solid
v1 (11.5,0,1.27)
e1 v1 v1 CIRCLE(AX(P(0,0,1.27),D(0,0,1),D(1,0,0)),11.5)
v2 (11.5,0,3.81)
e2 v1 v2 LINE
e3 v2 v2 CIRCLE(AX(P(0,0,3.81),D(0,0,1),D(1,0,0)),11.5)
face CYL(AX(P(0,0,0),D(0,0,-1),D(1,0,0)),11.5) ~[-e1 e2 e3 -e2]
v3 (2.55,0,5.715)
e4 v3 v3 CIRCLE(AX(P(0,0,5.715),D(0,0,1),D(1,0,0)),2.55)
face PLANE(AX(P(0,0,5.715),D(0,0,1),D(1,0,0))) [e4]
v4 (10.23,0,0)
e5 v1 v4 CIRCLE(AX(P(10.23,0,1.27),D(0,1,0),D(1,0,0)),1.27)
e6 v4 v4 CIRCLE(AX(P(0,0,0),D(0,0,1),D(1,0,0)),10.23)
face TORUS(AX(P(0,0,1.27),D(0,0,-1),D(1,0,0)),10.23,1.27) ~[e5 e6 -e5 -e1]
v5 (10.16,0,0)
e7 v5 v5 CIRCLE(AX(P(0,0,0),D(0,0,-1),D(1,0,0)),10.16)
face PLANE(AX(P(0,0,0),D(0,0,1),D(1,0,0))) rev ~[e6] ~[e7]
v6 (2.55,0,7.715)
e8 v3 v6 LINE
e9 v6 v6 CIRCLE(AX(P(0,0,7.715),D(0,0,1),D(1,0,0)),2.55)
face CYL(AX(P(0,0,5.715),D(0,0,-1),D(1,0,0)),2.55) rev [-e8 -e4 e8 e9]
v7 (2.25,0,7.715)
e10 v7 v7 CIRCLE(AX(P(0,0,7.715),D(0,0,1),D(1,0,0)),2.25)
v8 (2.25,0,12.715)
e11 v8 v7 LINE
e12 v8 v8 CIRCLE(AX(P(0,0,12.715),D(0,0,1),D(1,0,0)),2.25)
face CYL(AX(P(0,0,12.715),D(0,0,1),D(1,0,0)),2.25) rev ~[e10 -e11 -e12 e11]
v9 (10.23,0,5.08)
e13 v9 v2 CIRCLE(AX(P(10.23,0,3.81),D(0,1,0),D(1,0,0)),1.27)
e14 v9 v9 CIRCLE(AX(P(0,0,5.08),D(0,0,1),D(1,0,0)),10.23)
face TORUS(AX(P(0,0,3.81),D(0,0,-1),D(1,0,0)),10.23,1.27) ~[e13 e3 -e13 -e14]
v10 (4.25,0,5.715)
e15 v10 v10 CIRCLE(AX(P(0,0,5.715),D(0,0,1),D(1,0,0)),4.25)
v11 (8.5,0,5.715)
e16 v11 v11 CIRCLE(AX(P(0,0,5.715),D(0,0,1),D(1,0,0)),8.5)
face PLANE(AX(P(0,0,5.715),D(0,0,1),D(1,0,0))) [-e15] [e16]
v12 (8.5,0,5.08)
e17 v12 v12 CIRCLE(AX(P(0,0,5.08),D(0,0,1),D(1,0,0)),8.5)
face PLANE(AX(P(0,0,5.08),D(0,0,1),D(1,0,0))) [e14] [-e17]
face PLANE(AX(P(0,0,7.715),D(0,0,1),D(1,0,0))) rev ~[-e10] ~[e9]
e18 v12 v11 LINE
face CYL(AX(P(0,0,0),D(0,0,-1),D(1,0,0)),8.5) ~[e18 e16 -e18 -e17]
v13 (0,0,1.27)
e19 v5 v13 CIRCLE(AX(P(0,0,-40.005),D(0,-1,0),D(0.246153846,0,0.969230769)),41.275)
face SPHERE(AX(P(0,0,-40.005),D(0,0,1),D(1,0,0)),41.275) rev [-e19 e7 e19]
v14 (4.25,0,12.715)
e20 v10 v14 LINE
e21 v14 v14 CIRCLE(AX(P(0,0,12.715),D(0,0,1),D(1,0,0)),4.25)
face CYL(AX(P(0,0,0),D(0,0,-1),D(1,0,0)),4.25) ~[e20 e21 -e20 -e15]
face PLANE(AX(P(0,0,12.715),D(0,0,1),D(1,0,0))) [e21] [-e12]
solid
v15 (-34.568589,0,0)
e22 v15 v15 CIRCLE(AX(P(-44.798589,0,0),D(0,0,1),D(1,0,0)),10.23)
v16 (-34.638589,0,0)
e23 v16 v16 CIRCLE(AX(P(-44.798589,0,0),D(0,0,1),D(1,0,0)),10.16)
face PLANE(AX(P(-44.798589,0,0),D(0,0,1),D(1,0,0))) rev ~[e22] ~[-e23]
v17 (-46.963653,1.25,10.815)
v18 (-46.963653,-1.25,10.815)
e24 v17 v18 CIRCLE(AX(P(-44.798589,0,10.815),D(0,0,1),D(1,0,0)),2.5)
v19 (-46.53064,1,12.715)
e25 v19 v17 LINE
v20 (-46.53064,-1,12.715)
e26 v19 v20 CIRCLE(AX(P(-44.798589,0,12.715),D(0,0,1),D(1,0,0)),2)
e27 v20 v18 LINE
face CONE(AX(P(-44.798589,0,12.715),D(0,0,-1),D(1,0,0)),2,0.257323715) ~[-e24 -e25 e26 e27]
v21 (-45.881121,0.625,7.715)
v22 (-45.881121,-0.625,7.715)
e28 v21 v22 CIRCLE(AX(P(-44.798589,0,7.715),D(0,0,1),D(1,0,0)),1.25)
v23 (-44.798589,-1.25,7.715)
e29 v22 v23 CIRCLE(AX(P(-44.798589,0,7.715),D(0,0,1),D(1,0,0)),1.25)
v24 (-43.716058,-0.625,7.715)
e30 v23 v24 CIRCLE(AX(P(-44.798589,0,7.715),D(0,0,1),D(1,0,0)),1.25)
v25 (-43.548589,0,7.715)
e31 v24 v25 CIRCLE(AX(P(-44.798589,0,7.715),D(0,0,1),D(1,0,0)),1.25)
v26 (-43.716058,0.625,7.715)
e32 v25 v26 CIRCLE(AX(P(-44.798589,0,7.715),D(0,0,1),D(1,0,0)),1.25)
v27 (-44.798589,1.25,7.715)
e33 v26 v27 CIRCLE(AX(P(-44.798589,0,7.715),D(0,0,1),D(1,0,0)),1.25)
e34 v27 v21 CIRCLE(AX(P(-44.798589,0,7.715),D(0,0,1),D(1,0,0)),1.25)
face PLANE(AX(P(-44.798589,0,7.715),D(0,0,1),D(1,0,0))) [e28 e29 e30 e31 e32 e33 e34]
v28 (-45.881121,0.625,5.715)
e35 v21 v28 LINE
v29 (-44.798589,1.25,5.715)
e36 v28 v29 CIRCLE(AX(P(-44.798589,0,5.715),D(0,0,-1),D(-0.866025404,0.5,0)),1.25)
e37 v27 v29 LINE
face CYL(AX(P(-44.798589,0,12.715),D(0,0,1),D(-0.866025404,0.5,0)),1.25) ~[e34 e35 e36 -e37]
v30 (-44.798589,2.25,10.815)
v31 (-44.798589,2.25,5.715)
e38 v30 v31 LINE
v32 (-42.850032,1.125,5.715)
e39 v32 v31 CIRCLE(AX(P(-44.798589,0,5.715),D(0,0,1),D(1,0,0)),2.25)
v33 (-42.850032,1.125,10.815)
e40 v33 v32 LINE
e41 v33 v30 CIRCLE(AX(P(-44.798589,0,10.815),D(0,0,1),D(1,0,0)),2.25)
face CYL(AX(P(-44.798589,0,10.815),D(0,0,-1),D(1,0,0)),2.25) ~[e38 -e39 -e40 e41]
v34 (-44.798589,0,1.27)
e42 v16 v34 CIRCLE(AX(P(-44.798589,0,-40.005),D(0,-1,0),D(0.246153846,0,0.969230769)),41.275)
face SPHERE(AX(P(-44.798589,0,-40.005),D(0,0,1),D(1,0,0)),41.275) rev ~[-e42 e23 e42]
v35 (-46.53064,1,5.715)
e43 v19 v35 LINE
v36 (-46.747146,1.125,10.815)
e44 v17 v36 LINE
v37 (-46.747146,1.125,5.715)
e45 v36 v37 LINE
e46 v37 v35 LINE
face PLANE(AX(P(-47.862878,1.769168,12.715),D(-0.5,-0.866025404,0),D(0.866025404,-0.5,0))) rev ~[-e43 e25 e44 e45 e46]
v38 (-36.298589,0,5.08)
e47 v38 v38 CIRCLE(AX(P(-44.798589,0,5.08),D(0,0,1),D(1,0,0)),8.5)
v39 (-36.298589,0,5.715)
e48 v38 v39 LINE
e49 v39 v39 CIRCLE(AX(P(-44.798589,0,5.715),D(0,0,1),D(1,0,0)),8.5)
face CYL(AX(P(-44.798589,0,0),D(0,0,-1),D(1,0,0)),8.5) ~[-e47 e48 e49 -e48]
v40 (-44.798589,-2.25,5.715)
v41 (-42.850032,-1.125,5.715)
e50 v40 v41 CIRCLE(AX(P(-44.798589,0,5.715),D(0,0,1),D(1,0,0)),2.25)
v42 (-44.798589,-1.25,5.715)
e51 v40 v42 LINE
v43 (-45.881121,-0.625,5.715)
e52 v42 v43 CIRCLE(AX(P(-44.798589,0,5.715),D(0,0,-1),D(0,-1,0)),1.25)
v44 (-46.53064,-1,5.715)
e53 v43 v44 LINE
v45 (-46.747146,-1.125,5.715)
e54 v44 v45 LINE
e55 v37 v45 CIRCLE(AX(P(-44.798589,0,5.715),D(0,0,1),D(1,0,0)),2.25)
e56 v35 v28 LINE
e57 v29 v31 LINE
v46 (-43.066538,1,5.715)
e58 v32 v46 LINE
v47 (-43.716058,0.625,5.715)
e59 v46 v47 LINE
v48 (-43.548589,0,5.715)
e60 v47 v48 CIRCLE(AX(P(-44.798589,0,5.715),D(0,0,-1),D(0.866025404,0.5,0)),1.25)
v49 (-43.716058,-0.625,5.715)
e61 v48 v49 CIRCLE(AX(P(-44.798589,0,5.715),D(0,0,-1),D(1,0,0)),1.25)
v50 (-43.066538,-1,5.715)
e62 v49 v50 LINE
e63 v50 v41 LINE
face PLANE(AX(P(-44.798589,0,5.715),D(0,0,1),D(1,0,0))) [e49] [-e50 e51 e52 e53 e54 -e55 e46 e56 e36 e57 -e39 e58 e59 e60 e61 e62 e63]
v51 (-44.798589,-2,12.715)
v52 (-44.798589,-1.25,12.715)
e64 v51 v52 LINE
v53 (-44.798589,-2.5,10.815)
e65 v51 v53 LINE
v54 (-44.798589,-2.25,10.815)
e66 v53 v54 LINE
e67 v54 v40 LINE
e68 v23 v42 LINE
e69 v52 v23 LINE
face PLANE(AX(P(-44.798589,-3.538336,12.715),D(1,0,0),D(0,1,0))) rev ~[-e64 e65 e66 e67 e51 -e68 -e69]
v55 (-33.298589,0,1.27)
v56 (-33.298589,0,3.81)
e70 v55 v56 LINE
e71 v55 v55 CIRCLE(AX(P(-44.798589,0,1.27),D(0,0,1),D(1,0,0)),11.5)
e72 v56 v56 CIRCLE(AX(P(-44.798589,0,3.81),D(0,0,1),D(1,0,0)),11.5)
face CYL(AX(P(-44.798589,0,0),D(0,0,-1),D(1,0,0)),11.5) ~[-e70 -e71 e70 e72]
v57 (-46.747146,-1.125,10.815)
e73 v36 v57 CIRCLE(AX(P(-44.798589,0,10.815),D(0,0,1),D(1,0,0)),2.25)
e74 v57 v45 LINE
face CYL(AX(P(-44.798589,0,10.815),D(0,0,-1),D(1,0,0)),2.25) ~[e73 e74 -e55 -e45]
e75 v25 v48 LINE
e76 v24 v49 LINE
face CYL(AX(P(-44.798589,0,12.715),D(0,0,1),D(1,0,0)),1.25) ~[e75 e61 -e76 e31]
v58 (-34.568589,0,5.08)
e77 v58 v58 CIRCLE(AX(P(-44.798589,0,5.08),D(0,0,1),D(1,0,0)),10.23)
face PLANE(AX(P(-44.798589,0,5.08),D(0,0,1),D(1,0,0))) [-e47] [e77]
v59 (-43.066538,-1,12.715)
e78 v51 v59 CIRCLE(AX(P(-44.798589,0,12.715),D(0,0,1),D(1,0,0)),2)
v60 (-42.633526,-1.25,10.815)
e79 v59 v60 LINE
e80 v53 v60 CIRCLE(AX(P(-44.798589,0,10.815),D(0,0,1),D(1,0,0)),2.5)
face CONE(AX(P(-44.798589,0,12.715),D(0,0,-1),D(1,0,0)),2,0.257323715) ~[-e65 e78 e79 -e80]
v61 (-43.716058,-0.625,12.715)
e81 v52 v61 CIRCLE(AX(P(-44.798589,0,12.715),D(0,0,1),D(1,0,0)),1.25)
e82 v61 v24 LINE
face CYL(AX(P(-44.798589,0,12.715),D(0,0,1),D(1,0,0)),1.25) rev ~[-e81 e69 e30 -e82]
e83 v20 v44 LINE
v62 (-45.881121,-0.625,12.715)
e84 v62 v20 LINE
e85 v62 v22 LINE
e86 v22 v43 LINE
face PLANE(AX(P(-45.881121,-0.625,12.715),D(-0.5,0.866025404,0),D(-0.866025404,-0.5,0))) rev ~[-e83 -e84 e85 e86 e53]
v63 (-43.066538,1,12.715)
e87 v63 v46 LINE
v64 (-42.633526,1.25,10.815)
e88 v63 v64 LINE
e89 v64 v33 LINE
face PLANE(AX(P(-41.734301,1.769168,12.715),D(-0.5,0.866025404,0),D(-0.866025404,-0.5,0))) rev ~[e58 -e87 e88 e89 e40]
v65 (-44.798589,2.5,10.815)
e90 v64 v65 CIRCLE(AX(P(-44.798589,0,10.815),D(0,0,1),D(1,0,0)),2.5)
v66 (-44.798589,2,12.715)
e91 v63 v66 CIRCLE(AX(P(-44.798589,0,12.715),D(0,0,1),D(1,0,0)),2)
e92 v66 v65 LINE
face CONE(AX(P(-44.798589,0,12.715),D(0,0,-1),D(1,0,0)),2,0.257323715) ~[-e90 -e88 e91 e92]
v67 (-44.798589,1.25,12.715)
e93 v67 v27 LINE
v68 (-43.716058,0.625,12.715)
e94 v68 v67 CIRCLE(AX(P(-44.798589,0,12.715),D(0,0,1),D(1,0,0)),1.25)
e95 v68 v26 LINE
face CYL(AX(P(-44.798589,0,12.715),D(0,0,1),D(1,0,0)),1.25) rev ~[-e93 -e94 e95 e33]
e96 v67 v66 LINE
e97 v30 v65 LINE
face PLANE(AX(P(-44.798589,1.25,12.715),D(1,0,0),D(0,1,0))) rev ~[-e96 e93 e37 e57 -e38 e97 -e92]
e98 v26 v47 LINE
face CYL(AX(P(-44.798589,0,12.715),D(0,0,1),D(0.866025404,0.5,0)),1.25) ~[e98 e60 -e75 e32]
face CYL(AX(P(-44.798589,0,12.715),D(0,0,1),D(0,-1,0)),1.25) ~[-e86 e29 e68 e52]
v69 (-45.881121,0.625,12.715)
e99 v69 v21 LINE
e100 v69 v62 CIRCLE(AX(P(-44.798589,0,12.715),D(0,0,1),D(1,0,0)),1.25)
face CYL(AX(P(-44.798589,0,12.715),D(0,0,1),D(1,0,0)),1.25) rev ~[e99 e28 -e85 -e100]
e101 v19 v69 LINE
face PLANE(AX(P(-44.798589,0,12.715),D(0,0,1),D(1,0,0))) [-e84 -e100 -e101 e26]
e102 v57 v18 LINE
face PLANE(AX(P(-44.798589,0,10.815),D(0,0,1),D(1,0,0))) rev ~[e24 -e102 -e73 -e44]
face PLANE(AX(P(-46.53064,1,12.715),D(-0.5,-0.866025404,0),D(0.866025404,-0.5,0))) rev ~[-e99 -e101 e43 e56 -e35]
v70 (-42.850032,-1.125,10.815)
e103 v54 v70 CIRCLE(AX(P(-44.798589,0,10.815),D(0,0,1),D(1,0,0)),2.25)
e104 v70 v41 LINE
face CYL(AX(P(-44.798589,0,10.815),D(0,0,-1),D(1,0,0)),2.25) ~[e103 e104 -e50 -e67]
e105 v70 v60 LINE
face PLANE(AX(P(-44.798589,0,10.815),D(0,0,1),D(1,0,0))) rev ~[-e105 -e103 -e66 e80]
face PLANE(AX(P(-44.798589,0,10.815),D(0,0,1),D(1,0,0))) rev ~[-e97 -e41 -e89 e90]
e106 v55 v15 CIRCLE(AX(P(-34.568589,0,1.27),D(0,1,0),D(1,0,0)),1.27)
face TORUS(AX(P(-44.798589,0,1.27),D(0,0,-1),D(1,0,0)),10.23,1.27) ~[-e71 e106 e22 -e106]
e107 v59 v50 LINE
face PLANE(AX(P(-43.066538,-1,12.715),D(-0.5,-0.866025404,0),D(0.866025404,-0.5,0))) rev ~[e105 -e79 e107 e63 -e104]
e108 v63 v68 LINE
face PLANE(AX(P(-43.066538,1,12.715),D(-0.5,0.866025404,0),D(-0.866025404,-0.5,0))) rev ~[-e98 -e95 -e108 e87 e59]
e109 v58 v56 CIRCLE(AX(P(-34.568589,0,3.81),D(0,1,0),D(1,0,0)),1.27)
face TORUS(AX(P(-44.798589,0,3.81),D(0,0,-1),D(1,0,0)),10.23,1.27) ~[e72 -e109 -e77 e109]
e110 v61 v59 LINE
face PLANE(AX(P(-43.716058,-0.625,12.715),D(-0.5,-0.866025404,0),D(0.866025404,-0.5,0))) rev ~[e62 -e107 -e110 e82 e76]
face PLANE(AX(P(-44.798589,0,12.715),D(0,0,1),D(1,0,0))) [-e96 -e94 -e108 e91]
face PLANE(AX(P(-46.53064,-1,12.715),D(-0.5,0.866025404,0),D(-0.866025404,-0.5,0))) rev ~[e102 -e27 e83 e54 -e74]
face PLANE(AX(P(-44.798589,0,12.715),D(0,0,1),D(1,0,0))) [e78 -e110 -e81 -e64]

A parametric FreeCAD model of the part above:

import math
import FreeCAD as App
import Part
import Sketcher

V = App.Vector
Q = App.Units.Quantity


def edges_at(feature, points):
    """Names of the edges that pass closest to the given points."""
    edges = feature.Shape.Edges
    near = lambda p: min(range(len(edges)), key=lambda i: edges[i].distToShape(Part.Vertex(*p))[0])
    return sorted({f"Edge{near(p) + 1}" for p in points})

doc = App.newDocument("Part")
params = doc.addObject("Spreadsheet::Sheet", "Params")
for row, (alias, value) in enumerate([
    ("sketch1_diameter", "23 mm"),
    ("sketch1_diameter2", "17 mm"),
    ("pad1_length", "5.08 mm"),
    ("sketch2_diameter", "17 mm"),
    ("sketch2_diameter2", "8.5 mm"),
    ("pad2_length", "5.715 mm"),
    ("sketch3_diameter", "8.5 mm"),
    ("pad3_length", "12.715 mm"),
    ("fillet_radius", "1.27 mm"),
    ("sketch4_diameter", "4.5 mm"),
    ("pocket1_length", "7 mm"),
    ("sketch5_diameter", "5.1 mm"),
    ("pocket2_length", "2 mm"),
    ("sketch6_width", "10.16 mm"),
    ("groove_angle", "360 deg"),
    ("sketch7_diameter", "23 mm"),
    ("sketch7_diameter2", "17 mm"),
    ("pad4_length", "5.08 mm"),
    ("sketch8_diameter", "17 mm"),
    ("sketch8_diameter2", "5 mm"),
    ("pad5_length", "5.715 mm"),
    ("sketch9_diameter", "5 mm"),
    ("pad6_length", "12.715 mm"),
    ("fillet2_radius", "1.27 mm"),
    ("sketch10_height", "5.1 mm"),
    ("sketch10_width", "0.25 mm"),
    ("groove2_angle", "360 deg"),
    ("sketch11_diameter", "2.5 mm"),
    ("pocket3_length", "5 mm"),
    ("sketch12_radius", "1.25 mm"),
    ("sketch12_length", "0.75 mm"),
    ("pocket4_length", "7 mm"),
    ("sketch13_width", "10.16 mm"),
    ("groove3_angle", "360 deg"),
], start=1):
    params.set(f"A{row}", alias)
    params.set(f"B{row}", "=" + value)
    params.setAlias(f"B{row}", alias)

body = doc.addObject("PartDesign::Body", "Body")

# Sketch on XY plane
sketch1 = doc.addObject("Sketcher::SketchObject", "Sketch")
body.addObject(sketch1)
sketch1.AttachmentSupport = (doc.XY_Plane, [""])
sketch1.MapMode = "FlatFace"
sketch1.addGeometry(Part.Circle(V(0, 0, 0), V(0, 0, 1), 11.5), False)
sketch1.addGeometry(Part.Circle(V(0, 0, 0), V(0, 0, 1), 8.5), False)
sketch1.addConstraint(Sketcher.Constraint("Coincident", 0, 3, -1, 1))
sketch1.addConstraint(Sketcher.Constraint("Coincident", 1, 3, -1, 1))
sketch1.addConstraint(Sketcher.Constraint("Diameter", 0, Q("23 mm")))
sketch1.addConstraint(Sketcher.Constraint("Diameter", 1, Q("17 mm")))
sketch1.setExpression("Constraints[2]", "Params.sketch1_diameter")
sketch1.setExpression("Constraints[3]", "Params.sketch1_diameter2")
pad1 = doc.addObject("PartDesign::Pad", "Pad")
body.addObject(pad1)
pad1.Profile = sketch1
pad1.setExpression("Length", "Params.pad1_length")

# Sketch on XY plane
sketch2 = doc.addObject("Sketcher::SketchObject", "Sketch001")
body.addObject(sketch2)
sketch2.AttachmentSupport = (doc.XY_Plane, [""])
sketch2.MapMode = "FlatFace"
sketch2.addGeometry(Part.Circle(V(0, 0, 0), V(0, 0, 1), 8.5), False)
sketch2.addGeometry(Part.Circle(V(0, 0, 0), V(0, 0, 1), 4.25), False)
sketch2.addConstraint(Sketcher.Constraint("Coincident", 0, 3, -1, 1))
sketch2.addConstraint(Sketcher.Constraint("Coincident", 1, 3, -1, 1))
sketch2.addConstraint(Sketcher.Constraint("Diameter", 0, Q("17 mm")))
sketch2.addConstraint(Sketcher.Constraint("Diameter", 1, Q("8.5 mm")))
sketch2.setExpression("Constraints[2]", "Params.sketch2_diameter")
sketch2.setExpression("Constraints[3]", "Params.sketch2_diameter2")
pad2 = doc.addObject("PartDesign::Pad", "Pad001")
body.addObject(pad2)
pad2.Profile = sketch2
pad2.setExpression("Length", "Params.pad2_length")

# Sketch on XY plane
sketch3 = doc.addObject("Sketcher::SketchObject", "Sketch002")
body.addObject(sketch3)
sketch3.AttachmentSupport = (doc.XY_Plane, [""])
sketch3.MapMode = "FlatFace"
sketch3.addGeometry(Part.Circle(V(0, 0, 0), V(0, 0, 1), 4.25), False)
sketch3.addConstraint(Sketcher.Constraint("Coincident", 0, 3, -1, 1))
sketch3.addConstraint(Sketcher.Constraint("Diameter", 0, Q("8.5 mm")))
sketch3.setExpression("Constraints[1]", "Params.sketch3_diameter")
pad3 = doc.addObject("PartDesign::Pad", "Pad002")
body.addObject(pad3)
pad3.Profile = sketch3
pad3.setExpression("Length", "Params.pad3_length")
doc.recompute()

fillet = doc.addObject("PartDesign::Fillet", "Fillet")
body.addObject(fillet)
fillet.Base = (pad3, edges_at(pad3, [(-11.5, 0, 5.08), (-11.5, 0, 0)]))
fillet.setExpression("Radius", "Params.fillet_radius")

# Sketch on XY plane
sketch4 = doc.addObject("Sketcher::SketchObject", "Sketch003")
body.addObject(sketch4)
sketch4.AttachmentSupport = (doc.XY_Plane, [""])
sketch4.MapMode = "FlatFace"
sketch4.AttachmentOffset = App.Placement(V(0, 0, 12.715), App.Rotation())
sketch4.addGeometry(Part.Circle(V(0, 0, 0), V(0, 0, 1), 2.25), False)
sketch4.addConstraint(Sketcher.Constraint("Coincident", 0, 3, -1, 1))
sketch4.addConstraint(Sketcher.Constraint("Diameter", 0, Q("4.5 mm")))
sketch4.setExpression("Constraints[1]", "Params.sketch4_diameter")
pocket1 = doc.addObject("PartDesign::Pocket", "Pocket")
body.addObject(pocket1)
pocket1.Profile = sketch4
pocket1.setExpression("Length", "Params.pocket1_length")

# Sketch on XY plane
sketch5 = doc.addObject("Sketcher::SketchObject", "Sketch004")
body.addObject(sketch5)
sketch5.AttachmentSupport = (doc.XY_Plane, [""])
sketch5.MapMode = "FlatFace"
sketch5.AttachmentOffset = App.Placement(V(0, 0, 5.715), App.Rotation())
sketch5.addGeometry(Part.Circle(V(0, 0, 0), V(0, 0, 1), 2.55), False)
sketch5.addConstraint(Sketcher.Constraint("Coincident", 0, 3, -1, 1))
sketch5.addConstraint(Sketcher.Constraint("Diameter", 0, Q("5.1 mm")))
sketch5.setExpression("Constraints[1]", "Params.sketch5_diameter")
pocket2 = doc.addObject("PartDesign::Pocket", "Pocket001")
body.addObject(pocket2)
pocket2.Profile = sketch5
pocket2.setExpression("Length", "Params.pocket2_length")
pocket2.Reversed = True

# Sketch on XZ plane
sketch6 = doc.addObject("Sketcher::SketchObject", "Sketch005")
body.addObject(sketch6)
sketch6.AttachmentSupport = (doc.XZ_Plane, [""])
sketch6.MapMode = "FlatFace"
sketch6.addGeometry(Part.LineSegment(V(0, 1.27, 0), V(0, 0, 0)), False)
sketch6.addGeometry(Part.LineSegment(V(0, 0, 0), V(10.16, 0, 0)), False)
sketch6.addGeometry(Part.ArcOfCircle(Part.Circle(V(0, -40.005, 0), V(0, 0, 1), 41.275), math.radians(75.749967), math.radians(90)), False)
sketch6.addConstraint(Sketcher.Constraint("Coincident", 0, 2, 1, 1))
sketch6.addConstraint(Sketcher.Constraint("Coincident", 1, 2, 2, 1))
sketch6.addConstraint(Sketcher.Constraint("Coincident", 2, 2, 0, 1))
sketch6.addConstraint(Sketcher.Constraint("Vertical", 0))
sketch6.addConstraint(Sketcher.Constraint("Horizontal", 1))
sketch6.addConstraint(Sketcher.Constraint("Coincident", 0, 2, -1, 1))
sketch6.addConstraint(Sketcher.Constraint("PointOnObject", 2, 3, -2))
sketch6.addConstraint(Sketcher.Constraint("Radius", 2, Q("41.275 mm")))
sketch6.addConstraint(Sketcher.Constraint("DistanceX", 1, 1, 1, 2, Q("10.16 mm")))
sketch6.setExpression("Constraints[8]", "Params.sketch6_width")
groove = doc.addObject("PartDesign::Groove", "Groove")
body.addObject(groove)
groove.Profile = sketch6
groove.ReferenceAxis = (sketch6, ["V_Axis"])
groove.setExpression("Angle", "Params.groove_angle")
body2 = doc.addObject("PartDesign::Body", "Body001")

# Sketch on XY plane
sketch7 = doc.addObject("Sketcher::SketchObject", "Sketch006")
body2.addObject(sketch7)
sketch7.AttachmentSupport = (doc.getObject("XY_Plane001"), [""])
sketch7.MapMode = "FlatFace"
sketch7.addGeometry(Part.Circle(V(-44.798589, 0, 0), V(0, 0, 1), 11.5), False)
sketch7.addGeometry(Part.Circle(V(-44.798589, 0, 0), V(0, 0, 1), 8.5), False)
sketch7.addConstraint(Sketcher.Constraint("Coincident", 1, 3, 0, 3))
sketch7.addConstraint(Sketcher.Constraint("PointOnObject", 0, 3, -1))
sketch7.addConstraint(Sketcher.Constraint("Diameter", 0, Q("23 mm")))
sketch7.addConstraint(Sketcher.Constraint("Diameter", 1, Q("17 mm")))
sketch7.addConstraint(Sketcher.Constraint("DistanceX", 0, 3, -1, 1, Q("44.798589 mm")))
sketch7.setExpression("Constraints[2]", "Params.sketch7_diameter")
sketch7.setExpression("Constraints[3]", "Params.sketch7_diameter2")
pad4 = doc.addObject("PartDesign::Pad", "Pad003")
body2.addObject(pad4)
pad4.Profile = sketch7
pad4.setExpression("Length", "Params.pad4_length")

# Sketch on XY plane
sketch8 = doc.addObject("Sketcher::SketchObject", "Sketch007")
body2.addObject(sketch8)
sketch8.AttachmentSupport = (doc.getObject("XY_Plane001"), [""])
sketch8.MapMode = "FlatFace"
sketch8.addGeometry(Part.Circle(V(-44.798589, 0, 0), V(0, 0, 1), 8.5), False)
sketch8.addGeometry(Part.Circle(V(-44.798589, 0, 0), V(0, 0, 1), 2.5), False)
sketch8.addConstraint(Sketcher.Constraint("Coincident", 1, 3, 0, 3))
sketch8.addConstraint(Sketcher.Constraint("PointOnObject", 0, 3, -1))
sketch8.addConstraint(Sketcher.Constraint("Diameter", 0, Q("17 mm")))
sketch8.addConstraint(Sketcher.Constraint("Diameter", 1, Q("5 mm")))
sketch8.addConstraint(Sketcher.Constraint("DistanceX", 0, 3, -1, 1, Q("44.798589 mm")))
sketch8.setExpression("Constraints[2]", "Params.sketch8_diameter")
sketch8.setExpression("Constraints[3]", "Params.sketch8_diameter2")
pad5 = doc.addObject("PartDesign::Pad", "Pad004")
body2.addObject(pad5)
pad5.Profile = sketch8
pad5.setExpression("Length", "Params.pad5_length")

# Sketch on XY plane
sketch9 = doc.addObject("Sketcher::SketchObject", "Sketch008")
body2.addObject(sketch9)
sketch9.AttachmentSupport = (doc.getObject("XY_Plane001"), [""])
sketch9.MapMode = "FlatFace"
sketch9.addGeometry(Part.Circle(V(-44.798589, 0, 0), V(0, 0, 1), 2.5), False)
sketch9.addConstraint(Sketcher.Constraint("PointOnObject", 0, 3, -1))
sketch9.addConstraint(Sketcher.Constraint("Diameter", 0, Q("5 mm")))
sketch9.addConstraint(Sketcher.Constraint("DistanceX", 0, 3, -1, 1, Q("44.798589 mm")))
sketch9.setExpression("Constraints[1]", "Params.sketch9_diameter")
pad6 = doc.addObject("PartDesign::Pad", "Pad005")
body2.addObject(pad6)
pad6.Profile = sketch9
pad6.setExpression("Length", "Params.pad6_length")
doc.recompute()

fillet2 = doc.addObject("PartDesign::Fillet", "Fillet001")
body2.addObject(fillet2)
fillet2.Base = (pad6, edges_at(pad6, [(-56.299, 0, 5.08), (-56.299, 0, 0)]))
fillet2.setExpression("Radius", "Params.fillet2_radius")

# Sketch on XZ plane
sketch10 = doc.addObject("Sketcher::SketchObject", "Sketch009")
body2.addObject(sketch10)
sketch10.AttachmentSupport = (doc.getObject("XZ_Plane001"), [""])
sketch10.MapMode = "FlatFace"
sketch10.addGeometry(Part.LineSegment(V(-42.548589, 10.815, 0), V(-42.548589, 5.715, 0)), False)
sketch10.addGeometry(Part.LineSegment(V(-42.548589, 5.715, 0), V(-41.899718, 5.715, 0)), False)
sketch10.addGeometry(Part.LineSegment(V(-41.899718, 5.715, 0), V(-41.636892, 10.815, 0)), False)
sketch10.addGeometry(Part.LineSegment(V(-41.636892, 10.815, 0), V(-41.877424, 12.803311, 0)), False)
sketch10.addGeometry(Part.LineSegment(V(-41.877424, 12.803311, 0), V(-42.548589, 12.715, 0)), False)
sketch10.addGeometry(Part.LineSegment(V(-42.548589, 12.715, 0), V(-42.798589, 12.715, 0)), False)
sketch10.addGeometry(Part.LineSegment(V(-42.798589, 12.715, 0), V(-42.298589, 10.815, 0)), False)
sketch10.addGeometry(Part.LineSegment(V(-42.298589, 10.815, 0), V(-42.548589, 10.815, 0)), False)
sketch10.addGeometry(Part.LineSegment(V(-44.798589, 5.715, 0), V(-44.798589, 12.803311, 0)), True)  # axis
sketch10.addConstraint(Sketcher.Constraint("Coincident", 0, 2, 1, 1))
sketch10.addConstraint(Sketcher.Constraint("Coincident", 1, 2, 2, 1))
sketch10.addConstraint(Sketcher.Constraint("Coincident", 2, 2, 3, 1))
sketch10.addConstraint(Sketcher.Constraint("Coincident", 3, 2, 4, 1))
sketch10.addConstraint(Sketcher.Constraint("Coincident", 4, 2, 5, 1))
sketch10.addConstraint(Sketcher.Constraint("Coincident", 5, 2, 6, 1))
sketch10.addConstraint(Sketcher.Constraint("Coincident", 6, 2, 7, 1))
sketch10.addConstraint(Sketcher.Constraint("Coincident", 7, 2, 0, 1))
sketch10.addConstraint(Sketcher.Constraint("Vertical", 0))
sketch10.addConstraint(Sketcher.Constraint("Horizontal", 1))
sketch10.addConstraint(Sketcher.Constraint("Horizontal", 5))
sketch10.addConstraint(Sketcher.Constraint("Horizontal", 7))
sketch10.addConstraint(Sketcher.Constraint("Vertical", 8))
sketch10.addConstraint(Sketcher.Constraint("Horizontal", 2, 2, 6, 2))
sketch10.addConstraint(Sketcher.Constraint("Horizontal", 1, 2, 8, 1))
sketch10.addConstraint(Sketcher.Constraint("Horizontal", 3, 2, 8, 2))
sketch10.addConstraint(Sketcher.Constraint("Vertical", 0, 2, 4, 2))
sketch10.addConstraint(Sketcher.Constraint("Equal", 5, 7))
sketch10.addConstraint(Sketcher.Constraint("DistanceY", 0, 2, 0, 1, Q("5.1 mm")))
sketch10.addConstraint(Sketcher.Constraint("DistanceY", 0, 2, 4, 2, Q("7 mm")))
sketch10.addConstraint(Sketcher.Constraint("DistanceX", 8, 2, 5, 2, Q("2 mm")))
sketch10.addConstraint(Sketcher.Constraint("DistanceX", 5, 2, 5, 1, Q("0.25 mm")))
sketch10.addConstraint(Sketcher.Constraint("DistanceY", -1, 1, 0, 2, Q("5.715 mm")))
sketch10.addConstraint(Sketcher.Constraint("DistanceX", 1, 1, 1, 2, Q("0.648871 mm")))
sketch10.addConstraint(Sketcher.Constraint("DistanceY", 8, 1, 8, 2, Q("7.088311 mm")))
sketch10.addConstraint(Sketcher.Constraint("Distance", 4, Q("0.67695 mm")))
sketch10.addConstraint(Sketcher.Constraint("DistanceX", 0, 2, -1, 1, Q("42.548589 mm")))
sketch10.addConstraint(Sketcher.Constraint("DistanceX", 2, 2, -1, 1, Q("41.636892 mm")))
sketch10.setExpression("Constraints[18]", "Params.sketch10_height")
sketch10.setExpression("Constraints[21]", "Params.sketch10_width")
groove2 = doc.addObject("PartDesign::Groove", "Groove001")
body2.addObject(groove2)
groove2.Profile = sketch10
groove2.ReferenceAxis = (sketch10, ["Axis0"])
groove2.setExpression("Angle", "Params.groove2_angle")

# Sketch on XY plane
sketch11 = doc.addObject("Sketcher::SketchObject", "Sketch010")
body2.addObject(sketch11)
sketch11.AttachmentSupport = (doc.getObject("XY_Plane001"), [""])
sketch11.MapMode = "FlatFace"
sketch11.AttachmentOffset = App.Placement(V(0, 0, 12.715), App.Rotation())
sketch11.addGeometry(Part.Circle(V(-44.798589, 0, 0), V(0, 0, 1), 1.25), False)
sketch11.addConstraint(Sketcher.Constraint("PointOnObject", 0, 3, -1))
sketch11.addConstraint(Sketcher.Constraint("Diameter", 0, Q("2.5 mm")))
sketch11.addConstraint(Sketcher.Constraint("DistanceX", 0, 3, -1, 1, Q("44.798589 mm")))
sketch11.setExpression("Constraints[1]", "Params.sketch11_diameter")
pocket3 = doc.addObject("PartDesign::Pocket", "Pocket002")
body2.addObject(pocket3)
pocket3.Profile = sketch11
pocket3.setExpression("Length", "Params.pocket3_length")

# Sketch on XY plane
sketch12 = doc.addObject("Sketcher::SketchObject", "Sketch011")
body2.addObject(sketch12)
sketch12.AttachmentSupport = (doc.getObject("XY_Plane001"), [""])
sketch12.MapMode = "FlatFace"
sketch12.AttachmentOffset = App.Placement(V(0, 0, 12.715), App.Rotation())
sketch12.addGeometry(Part.ArcOfCircle(Part.Circle(V(-44.798589, 0, 0), V(0, 0, 1), 3.538336), math.radians(90), math.radians(150)), False)
sketch12.addGeometry(Part.LineSegment(V(-47.862878, 1.769168, 0), V(-46.53064, 1, 0)), False)
sketch12.addGeometry(Part.LineSegment(V(-46.53064, 1, 0), V(-45.881121, 0.625, 0)), False)
sketch12.addGeometry(Part.ArcOfCircle(Part.Circle(V(-44.798589, 0, 0), V(0, 0, 1), 1.25), math.radians(90), math.radians(150)), False)
sketch12.addGeometry(Part.LineSegment(V(-44.798589, 1.25, 0), V(-44.798589, 3.538336, 0)), False)
sketch12.addGeometry(Part.ArcOfCircle(Part.Circle(V(-44.798589, 0, 0), V(0, 0, 1), 3.538336), math.radians(-30), math.radians(0)), False)
sketch12.addGeometry(Part.ArcOfCircle(Part.Circle(V(-44.798589, 0, 0), V(0, 0, 1), 3.538336), math.radians(0), math.radians(30)), False)
sketch12.addGeometry(Part.LineSegment(V(-41.734301, 1.769168, 0), V(-43.066538, 1, 0)), False)
sketch12.addGeometry(Part.LineSegment(V(-43.066538, 1, 0), V(-43.716058, 0.625, 0)), False)
sketch12.addGeometry(Part.ArcOfCircle(Part.Circle(V(-44.798589, 0, 0), V(0, 0, 1), 1.25), math.radians(0), math.radians(30)), False)
sketch12.addGeometry(Part.ArcOfCircle(Part.Circle(V(-44.798589, 0, 0), V(0, 0, 1), 1.25), math.radians(-30), math.radians(0)), False)
sketch12.addGeometry(Part.LineSegment(V(-43.716058, -0.625, 0), V(-43.066538, -1, 0)), False)
sketch12.addGeometry(Part.LineSegment(V(-43.066538, -1, 0), V(-41.734301, -1.769168, 0)), False)
sketch12.addGeometry(Part.ArcOfCircle(Part.Circle(V(-44.798589, 0, 0), V(0, 0, 1), 3.538336), math.radians(-150), math.radians(-90)), False)
sketch12.addGeometry(Part.LineSegment(V(-44.798589, -3.538336, 0), V(-44.798589, -1.25, 0)), False)
sketch12.addGeometry(Part.ArcOfCircle(Part.Circle(V(-44.798589, 0, 0), V(0, 0, 1), 1.25), math.radians(-150), math.radians(-90)), False)
sketch12.addGeometry(Part.LineSegment(V(-45.881121, -0.625, 0), V(-46.53064, -1, 0)), False)
sketch12.addGeometry(Part.LineSegment(V(-46.53064, -1, 0), V(-47.862878, -1.769168, 0)), False)
sketch12.addConstraint(Sketcher.Constraint("Coincident", 0, 2, 1, 1))
sketch12.addConstraint(Sketcher.Constraint("Coincident", 1, 2, 2, 1))
sketch12.addConstraint(Sketcher.Constraint("Coincident", 2, 2, 3, 2))
sketch12.addConstraint(Sketcher.Constraint("Coincident", 3, 1, 4, 1))
sketch12.addConstraint(Sketcher.Constraint("Coincident", 4, 2, 0, 1))
sketch12.addConstraint(Sketcher.Constraint("Tangent", 5, 2, 6, 1))
sketch12.addConstraint(Sketcher.Constraint("Coincident", 6, 2, 7, 1))
sketch12.addConstraint(Sketcher.Constraint("Coincident", 7, 2, 8, 1))
sketch12.addConstraint(Sketcher.Constraint("Coincident", 8, 2, 9, 2))
sketch12.addConstraint(Sketcher.Constraint("Tangent", 9, 1, 10, 2))
sketch12.addConstraint(Sketcher.Constraint("Coincident", 10, 1, 11, 1))
sketch12.addConstraint(Sketcher.Constraint("Coincident", 11, 2, 12, 1))
sketch12.addConstraint(Sketcher.Constraint("Coincident", 12, 2, 5, 1))
sketch12.addConstraint(Sketcher.Constraint("Coincident", 13, 2, 14, 1))
sketch12.addConstraint(Sketcher.Constraint("Coincident", 14, 2, 15, 2))
sketch12.addConstraint(Sketcher.Constraint("Coincident", 15, 1, 16, 1))
sketch12.addConstraint(Sketcher.Constraint("Coincident", 16, 2, 17, 1))
sketch12.addConstraint(Sketcher.Constraint("Coincident", 17, 2, 13, 1))
sketch12.addConstraint(Sketcher.Constraint("Vertical", 4))
sketch12.addConstraint(Sketcher.Constraint("Vertical", 14))
sketch12.addConstraint(Sketcher.Constraint("Coincident", 3, 3, 0, 3))
sketch12.addConstraint(Sketcher.Constraint("Coincident", 5, 3, 0, 3))
sketch12.addConstraint(Sketcher.Constraint("Coincident", 9, 3, 0, 3))
sketch12.addConstraint(Sketcher.Constraint("Coincident", 13, 3, 0, 3))
sketch12.addConstraint(Sketcher.Constraint("Coincident", 15, 3, 0, 3))
sketch12.addConstraint(Sketcher.Constraint("Equal", 0, 5))
sketch12.addConstraint(Sketcher.Constraint("Equal", 5, 6))
sketch12.addConstraint(Sketcher.Constraint("Equal", 3, 9))
sketch12.addConstraint(Sketcher.Constraint("Equal", 9, 10))
sketch12.addConstraint(Sketcher.Constraint("Equal", 6, 13))
sketch12.addConstraint(Sketcher.Constraint("Equal", 10, 15))
sketch12.addConstraint(Sketcher.Constraint("Symmetric", 8, 2, 10, 1, -1))
sketch12.addConstraint(Sketcher.Constraint("Symmetric", 7, 2, 11, 2, -1))
sketch12.addConstraint(Sketcher.Constraint("Symmetric", 1, 2, 16, 2, -1))
sketch12.addConstraint(Sketcher.Constraint("PointOnObject", 5, 2, -1))
sketch12.addConstraint(Sketcher.Constraint("PointOnObject", 9, 1, -1))
sketch12.addConstraint(Sketcher.Constraint("Parallel", 1, 2))
sketch12.addConstraint(Sketcher.Constraint("Parallel", 7, 8))
sketch12.addConstraint(Sketcher.Constraint("Parallel", 2, 11))
sketch12.addConstraint(Sketcher.Constraint("Parallel", 11, 12))
sketch12.addConstraint(Sketcher.Constraint("Parallel", 8, 16))
sketch12.addConstraint(Sketcher.Constraint("Parallel", 16, 17))
sketch12.addConstraint(Sketcher.Constraint("Horizontal", 0, 2, 6, 2))
sketch12.addConstraint(Sketcher.Constraint("Horizontal", 1, 2, 7, 2))
sketch12.addConstraint(Sketcher.Constraint("Vertical", 15, 3, 3, 1))
sketch12.addConstraint(Sketcher.Constraint("Vertical", 4, 2, 13, 2))
sketch12.addConstraint(Sketcher.Constraint("Angle", 1, Q("-30 deg")))
sketch12.addConstraint(Sketcher.Constraint("Radius", 3, Q("1.25 mm")))
sketch12.addConstraint(Sketcher.Constraint("DistanceY", -1, 1, 1, 2, Q("1 mm")))
sketch12.addConstraint(Sketcher.Constraint("Distance", 2, Q("0.75 mm")))
sketch12.addConstraint(Sketcher.Constraint("Radius", 0, Q("3.538336 mm")))
sketch12.addConstraint(Sketcher.Constraint("DistanceX", 6, 2, -1, 1, Q("41.734301 mm")))
sketch12.setExpression("Constraints[47]", "Params.sketch12_radius")
sketch12.setExpression("Constraints[49]", "Params.sketch12_length")
pocket4 = doc.addObject("PartDesign::Pocket", "Pocket003")
body2.addObject(pocket4)
pocket4.Profile = sketch12
pocket4.setExpression("Length", "Params.pocket4_length")

# Sketch on XZ plane
sketch13 = doc.addObject("Sketcher::SketchObject", "Sketch012")
body2.addObject(sketch13)
sketch13.AttachmentSupport = (doc.getObject("XZ_Plane001"), [""])
sketch13.MapMode = "FlatFace"
sketch13.addGeometry(Part.LineSegment(V(-44.798589, 1.27, 0), V(-44.798589, 0, 0)), False)
sketch13.addGeometry(Part.LineSegment(V(-44.798589, 0, 0), V(-34.638589, 0, 0)), False)
sketch13.addGeometry(Part.ArcOfCircle(Part.Circle(V(-44.798589, -40.005, 0), V(0, 0, 1), 41.275), math.radians(75.749967), math.radians(90)), False)
sketch13.addGeometry(Part.LineSegment(V(-44.798589, -40.005, 0), V(-44.798589, 1.27, 0)), True)  # axis
sketch13.addConstraint(Sketcher.Constraint("Coincident", 0, 2, 1, 1))
sketch13.addConstraint(Sketcher.Constraint("Coincident", 1, 2, 2, 1))
sketch13.addConstraint(Sketcher.Constraint("Coincident", 2, 2, 0, 1))
sketch13.addConstraint(Sketcher.Constraint("Vertical", 0))
sketch13.addConstraint(Sketcher.Constraint("Horizontal", 1))
sketch13.addConstraint(Sketcher.Constraint("Vertical", 3))
sketch13.addConstraint(Sketcher.Constraint("Coincident", 3, 1, 2, 3))
sketch13.addConstraint(Sketcher.Constraint("Coincident", 3, 2, 2, 2))
sketch13.addConstraint(Sketcher.Constraint("PointOnObject", 0, 2, -1))
sketch13.addConstraint(Sketcher.Constraint("Radius", 2, Q("41.275 mm")))
sketch13.addConstraint(Sketcher.Constraint("DistanceX", 1, 1, 1, 2, Q("10.16 mm")))
sketch13.addConstraint(Sketcher.Constraint("DistanceX", 2, 3, -1, 1, Q("44.798589 mm")))
sketch13.setExpression("Constraints[10]", "Params.sketch13_width")
groove3 = doc.addObject("PartDesign::Groove", "Groove002")
body2.addObject(groove3)
groove3.Profile = sketch13
groove3.ReferenceAxis = (sketch13, ["Axis0"])
groove3.setExpression("Angle", "Params.groove3_angle")

doc.recompute()
